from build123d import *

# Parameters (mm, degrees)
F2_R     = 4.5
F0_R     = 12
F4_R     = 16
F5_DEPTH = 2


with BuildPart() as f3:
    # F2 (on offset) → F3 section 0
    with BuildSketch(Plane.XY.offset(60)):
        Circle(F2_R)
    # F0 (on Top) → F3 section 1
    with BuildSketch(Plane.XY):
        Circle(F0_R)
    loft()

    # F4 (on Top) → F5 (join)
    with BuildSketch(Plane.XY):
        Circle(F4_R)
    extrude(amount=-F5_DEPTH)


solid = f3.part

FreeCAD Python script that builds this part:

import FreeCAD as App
import Part
import Sketcher
from FreeCAD import Vector

doc = App.newDocument("Part")
params = doc.addObject("Spreadsheet::Sheet", "Params")
for row, (alias, value) in enumerate([
    ("sketch1_diameter", "9 mm"),
    ("sketch2_diameter", "24 mm"),
    ("sketch3_diameter", "32 mm"),
    ("pad1_length", "2 mm"),
], start=1):
    params.set(f"A{row}", alias)
    params.set(f"B{row}", "=" + value)
    params.setAlias(f"B{row}", alias)

body = doc.addObject("PartDesign::Body", "Body")

# Sketch on XY plane
sketch1 = body.newObject("Sketcher::SketchObject", "Sketch")
sketch1.AttachmentSupport = (doc.getObject("XY_Plane"), [""])
sketch1.MapMode = "FlatFace"
sketch1.AttachmentOffset = App.Placement(Vector(0, 0, 60), App.Rotation())
sketch1.addGeometry(Part.Circle(Vector(0, 0, 0), Vector(0, 0, 1), 4.5), False)
sketch1.addConstraint([
    Sketcher.Constraint("Coincident", 0, 3, -1, 1),
    Sketcher.Constraint("Diameter", 0, 9.0),
])
sketch1.setExpression("Constraints[1]", "Params.sketch1_diameter")

# Sketch on XY plane
sketch2 = body.newObject("Sketcher::SketchObject", "Sketch001")
sketch2.AttachmentSupport = (doc.getObject("XY_Plane"), [""])
sketch2.MapMode = "FlatFace"
sketch2.addGeometry(Part.Circle(Vector(0, 0, 0), Vector(0, 0, 1), 12), False)
sketch2.addConstraint([
    Sketcher.Constraint("Coincident", 0, 3, -1, 1),
    Sketcher.Constraint("Diameter", 0, 24.0),
])
sketch2.setExpression("Constraints[1]", "Params.sketch2_diameter")

additiveloft = body.newObject("PartDesign::AdditiveLoft", "AdditiveLoft")
additiveloft.Profile = sketch1
additiveloft.Sections = [sketch2]

# Sketch on XY plane
sketch3 = body.newObject("Sketcher::SketchObject", "Sketch002")
sketch3.AttachmentSupport = (doc.getObject("XY_Plane"), [""])
sketch3.MapMode = "FlatFace"
sketch3.addGeometry(Part.Circle(Vector(0, 0, 0), Vector(0, 0, 1), 16), False)
sketch3.addConstraint([
    Sketcher.Constraint("Coincident", 0, 3, -1, 1),
    Sketcher.Constraint("Diameter", 0, 32.0),
])
sketch3.setExpression("Constraints[1]", "Params.sketch3_diameter")
pad1 = body.newObject("PartDesign::Pad", "Pad")
pad1.Profile = sketch3
pad1.setExpression("Length", "Params.pad1_length")
pad1.Reversed = True

doc.recompute()
